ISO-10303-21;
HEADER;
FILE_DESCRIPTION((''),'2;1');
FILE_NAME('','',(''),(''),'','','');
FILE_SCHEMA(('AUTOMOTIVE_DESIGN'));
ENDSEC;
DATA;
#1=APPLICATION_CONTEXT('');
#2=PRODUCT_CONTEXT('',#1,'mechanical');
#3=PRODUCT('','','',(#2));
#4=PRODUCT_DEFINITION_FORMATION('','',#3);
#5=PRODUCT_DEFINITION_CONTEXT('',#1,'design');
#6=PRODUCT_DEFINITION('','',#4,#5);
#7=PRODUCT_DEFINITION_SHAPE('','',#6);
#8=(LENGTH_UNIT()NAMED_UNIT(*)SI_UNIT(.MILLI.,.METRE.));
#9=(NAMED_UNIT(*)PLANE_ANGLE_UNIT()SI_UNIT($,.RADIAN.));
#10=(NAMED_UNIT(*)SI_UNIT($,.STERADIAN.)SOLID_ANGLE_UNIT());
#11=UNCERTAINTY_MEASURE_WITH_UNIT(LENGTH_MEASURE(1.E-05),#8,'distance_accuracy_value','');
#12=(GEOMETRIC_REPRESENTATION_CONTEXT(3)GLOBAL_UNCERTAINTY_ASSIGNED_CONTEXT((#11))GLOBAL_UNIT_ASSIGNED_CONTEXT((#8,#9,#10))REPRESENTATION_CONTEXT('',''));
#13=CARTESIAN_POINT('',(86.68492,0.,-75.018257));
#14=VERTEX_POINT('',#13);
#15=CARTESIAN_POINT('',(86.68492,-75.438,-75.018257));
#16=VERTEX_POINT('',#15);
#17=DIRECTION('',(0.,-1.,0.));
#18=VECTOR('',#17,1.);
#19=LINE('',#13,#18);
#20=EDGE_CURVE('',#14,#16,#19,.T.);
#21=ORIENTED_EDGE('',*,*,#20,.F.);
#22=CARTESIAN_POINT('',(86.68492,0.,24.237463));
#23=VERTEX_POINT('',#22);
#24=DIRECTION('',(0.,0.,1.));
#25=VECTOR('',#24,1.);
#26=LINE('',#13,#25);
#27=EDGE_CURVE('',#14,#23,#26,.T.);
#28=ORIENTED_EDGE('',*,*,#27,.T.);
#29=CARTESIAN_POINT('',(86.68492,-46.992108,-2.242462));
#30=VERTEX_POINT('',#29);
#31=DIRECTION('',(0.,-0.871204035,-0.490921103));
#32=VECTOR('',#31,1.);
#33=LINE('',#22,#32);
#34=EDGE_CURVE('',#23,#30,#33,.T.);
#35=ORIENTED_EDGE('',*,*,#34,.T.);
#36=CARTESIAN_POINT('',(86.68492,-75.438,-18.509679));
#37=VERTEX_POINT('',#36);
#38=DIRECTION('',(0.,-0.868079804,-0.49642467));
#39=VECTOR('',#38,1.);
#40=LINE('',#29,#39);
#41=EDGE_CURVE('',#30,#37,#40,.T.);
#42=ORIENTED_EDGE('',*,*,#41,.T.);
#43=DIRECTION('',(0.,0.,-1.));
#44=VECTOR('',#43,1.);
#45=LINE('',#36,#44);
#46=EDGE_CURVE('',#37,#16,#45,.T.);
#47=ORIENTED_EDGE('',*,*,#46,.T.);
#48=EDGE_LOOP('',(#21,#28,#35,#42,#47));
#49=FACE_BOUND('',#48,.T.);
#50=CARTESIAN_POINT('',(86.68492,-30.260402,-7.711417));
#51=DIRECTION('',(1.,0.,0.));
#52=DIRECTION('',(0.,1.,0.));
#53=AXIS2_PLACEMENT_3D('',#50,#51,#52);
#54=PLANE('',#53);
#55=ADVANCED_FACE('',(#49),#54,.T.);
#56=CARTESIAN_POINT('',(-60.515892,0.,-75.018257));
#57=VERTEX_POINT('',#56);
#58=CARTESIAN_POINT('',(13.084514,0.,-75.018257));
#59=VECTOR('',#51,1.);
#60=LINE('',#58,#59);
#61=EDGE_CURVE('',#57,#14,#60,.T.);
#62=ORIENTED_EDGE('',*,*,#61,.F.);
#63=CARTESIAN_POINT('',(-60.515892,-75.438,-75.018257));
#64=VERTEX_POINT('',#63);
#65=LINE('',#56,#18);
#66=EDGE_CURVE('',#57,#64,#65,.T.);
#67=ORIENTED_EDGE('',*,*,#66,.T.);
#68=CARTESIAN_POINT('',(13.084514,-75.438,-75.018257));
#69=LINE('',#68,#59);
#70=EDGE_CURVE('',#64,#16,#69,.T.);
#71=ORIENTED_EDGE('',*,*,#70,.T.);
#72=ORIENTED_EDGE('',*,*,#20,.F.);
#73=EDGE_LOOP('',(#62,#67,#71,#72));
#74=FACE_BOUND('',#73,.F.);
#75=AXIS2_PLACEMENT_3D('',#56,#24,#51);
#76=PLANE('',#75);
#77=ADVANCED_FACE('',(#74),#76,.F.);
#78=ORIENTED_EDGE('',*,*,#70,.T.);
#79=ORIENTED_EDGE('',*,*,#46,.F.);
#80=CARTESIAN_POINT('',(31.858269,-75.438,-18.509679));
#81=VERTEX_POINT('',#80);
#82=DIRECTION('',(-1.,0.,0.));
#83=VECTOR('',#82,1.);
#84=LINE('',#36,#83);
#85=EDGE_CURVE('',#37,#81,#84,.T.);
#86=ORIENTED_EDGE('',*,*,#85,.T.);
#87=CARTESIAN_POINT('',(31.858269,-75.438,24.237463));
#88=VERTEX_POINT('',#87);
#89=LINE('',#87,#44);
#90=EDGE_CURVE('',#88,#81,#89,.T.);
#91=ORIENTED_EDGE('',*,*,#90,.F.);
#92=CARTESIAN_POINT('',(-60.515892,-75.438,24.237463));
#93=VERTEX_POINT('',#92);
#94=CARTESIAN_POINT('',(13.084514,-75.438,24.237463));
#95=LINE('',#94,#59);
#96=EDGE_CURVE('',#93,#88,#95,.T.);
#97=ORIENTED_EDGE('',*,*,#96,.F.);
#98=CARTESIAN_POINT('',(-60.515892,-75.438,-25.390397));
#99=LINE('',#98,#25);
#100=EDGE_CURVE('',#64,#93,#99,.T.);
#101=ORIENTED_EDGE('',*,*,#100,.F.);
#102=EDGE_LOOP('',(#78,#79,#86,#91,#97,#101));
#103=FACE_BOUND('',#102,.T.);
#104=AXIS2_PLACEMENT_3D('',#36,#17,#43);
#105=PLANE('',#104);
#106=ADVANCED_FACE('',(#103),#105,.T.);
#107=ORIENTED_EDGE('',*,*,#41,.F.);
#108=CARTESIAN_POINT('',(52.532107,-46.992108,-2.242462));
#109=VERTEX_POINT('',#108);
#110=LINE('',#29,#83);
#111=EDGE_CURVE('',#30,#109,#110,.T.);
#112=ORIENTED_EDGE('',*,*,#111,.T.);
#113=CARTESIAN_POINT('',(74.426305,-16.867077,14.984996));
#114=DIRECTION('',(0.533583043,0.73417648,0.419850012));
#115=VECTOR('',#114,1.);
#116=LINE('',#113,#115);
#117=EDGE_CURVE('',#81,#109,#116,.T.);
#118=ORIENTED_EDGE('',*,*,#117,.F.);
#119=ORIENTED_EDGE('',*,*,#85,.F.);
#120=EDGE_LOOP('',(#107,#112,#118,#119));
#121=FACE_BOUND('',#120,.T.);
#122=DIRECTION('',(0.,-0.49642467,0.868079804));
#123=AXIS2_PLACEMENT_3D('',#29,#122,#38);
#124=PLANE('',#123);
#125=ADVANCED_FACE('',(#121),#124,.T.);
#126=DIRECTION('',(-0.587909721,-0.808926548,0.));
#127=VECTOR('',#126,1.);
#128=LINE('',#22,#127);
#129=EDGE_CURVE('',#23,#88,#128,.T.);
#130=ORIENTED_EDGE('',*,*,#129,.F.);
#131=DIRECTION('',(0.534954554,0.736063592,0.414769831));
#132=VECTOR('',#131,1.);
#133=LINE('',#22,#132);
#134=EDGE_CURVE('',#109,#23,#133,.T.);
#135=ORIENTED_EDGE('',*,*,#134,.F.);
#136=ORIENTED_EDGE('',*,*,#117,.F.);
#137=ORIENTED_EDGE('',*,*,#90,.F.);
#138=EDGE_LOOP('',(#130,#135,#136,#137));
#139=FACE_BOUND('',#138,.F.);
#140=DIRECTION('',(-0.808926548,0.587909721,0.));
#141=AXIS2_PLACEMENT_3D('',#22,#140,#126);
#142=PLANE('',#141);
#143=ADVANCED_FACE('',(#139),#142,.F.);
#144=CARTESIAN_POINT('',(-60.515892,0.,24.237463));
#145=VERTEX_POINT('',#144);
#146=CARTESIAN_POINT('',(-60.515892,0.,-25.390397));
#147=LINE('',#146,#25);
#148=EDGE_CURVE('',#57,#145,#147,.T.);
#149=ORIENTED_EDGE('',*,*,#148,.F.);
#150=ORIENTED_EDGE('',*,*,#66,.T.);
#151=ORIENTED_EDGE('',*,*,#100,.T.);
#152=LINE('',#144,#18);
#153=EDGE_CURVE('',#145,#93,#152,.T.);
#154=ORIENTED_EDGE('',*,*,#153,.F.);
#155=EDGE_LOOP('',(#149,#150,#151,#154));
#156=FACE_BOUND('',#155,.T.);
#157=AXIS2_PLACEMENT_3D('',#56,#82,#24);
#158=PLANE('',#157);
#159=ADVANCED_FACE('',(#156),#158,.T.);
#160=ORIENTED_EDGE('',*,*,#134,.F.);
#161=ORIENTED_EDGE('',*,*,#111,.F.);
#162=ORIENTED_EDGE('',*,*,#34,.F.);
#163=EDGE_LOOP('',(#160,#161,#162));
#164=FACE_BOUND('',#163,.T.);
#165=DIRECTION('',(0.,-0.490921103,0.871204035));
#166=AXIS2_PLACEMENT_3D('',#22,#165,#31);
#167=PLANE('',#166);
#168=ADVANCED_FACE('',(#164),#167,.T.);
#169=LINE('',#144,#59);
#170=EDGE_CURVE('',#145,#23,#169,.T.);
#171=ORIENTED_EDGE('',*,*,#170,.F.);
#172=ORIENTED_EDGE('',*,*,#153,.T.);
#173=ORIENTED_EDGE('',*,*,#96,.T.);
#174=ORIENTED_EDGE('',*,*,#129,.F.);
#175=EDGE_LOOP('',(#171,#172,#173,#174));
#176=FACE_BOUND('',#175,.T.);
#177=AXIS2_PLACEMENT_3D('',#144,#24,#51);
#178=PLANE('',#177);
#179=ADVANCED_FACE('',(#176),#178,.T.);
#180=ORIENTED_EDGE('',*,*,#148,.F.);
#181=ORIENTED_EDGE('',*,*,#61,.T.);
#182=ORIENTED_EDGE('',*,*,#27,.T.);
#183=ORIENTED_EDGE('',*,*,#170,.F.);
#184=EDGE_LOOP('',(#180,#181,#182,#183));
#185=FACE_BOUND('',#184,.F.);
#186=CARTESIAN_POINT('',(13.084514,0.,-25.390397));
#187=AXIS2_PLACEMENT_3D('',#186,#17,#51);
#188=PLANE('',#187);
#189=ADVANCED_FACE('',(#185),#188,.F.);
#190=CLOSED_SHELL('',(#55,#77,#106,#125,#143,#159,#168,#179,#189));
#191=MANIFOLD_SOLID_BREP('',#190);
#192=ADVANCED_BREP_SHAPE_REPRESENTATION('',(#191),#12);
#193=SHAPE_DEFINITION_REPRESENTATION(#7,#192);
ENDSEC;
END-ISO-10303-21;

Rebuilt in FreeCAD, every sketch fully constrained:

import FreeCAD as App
import Part
import Sketcher
from FreeCAD import Vector
Q = App.Units.Quantity


def add_polygon(sketch, points):
    """Adds a closed chain of lines whose ends are joined by coincident constraints."""
    first, n = sketch.GeometryCount, len(points)
    for a, b in zip(points, points[1:] + points[:1]):
        sketch.addGeometry(Part.LineSegment(App.Vector(*a, 0), App.Vector(*b, 0)), False)
    for i in range(n):
        sketch.addConstraint(Sketcher.Constraint("Coincident", first + i, 2, first + (i + 1) % n, 1))

doc = App.newDocument("Part")
body = doc.addObject("PartDesign::Body", "Body")

# Sketch on XZ plane
sketch1 = body.newObject("Sketcher::SketchObject", "Sketch")
sketch1.AttachmentSupport = (doc.getObject("XZ_Plane"), [""])
sketch1.MapMode = "FlatFace"
add_polygon(sketch1, [(-61, 24), (-61, -75), (87, -75), (87, 24)])  # lines 0-3
sketch1.addConstraint([
    Sketcher.Constraint("Vertical", 0),
    Sketcher.Constraint("Horizontal", 1),
    Sketcher.Constraint("Vertical", 2),
    Sketcher.Constraint("Horizontal", 3),
    Sketcher.Constraint("DistanceY", 0, 2, 0, 1, 99.25572),
    Sketcher.Constraint("DistanceX", 1, 1, 1, 2, 147.200812),
    Sketcher.Constraint("DistanceX", -1, 1, 1, 2, 86.68492),
    Sketcher.Constraint("DistanceY", 0, 2, -1, 1, 75.018257),
])
pad1 = body.newObject("PartDesign::Pad", "Pad")
pad1.Profile = sketch1
pad1.Length = Q("2.97 in")

# Sketch on XY plane
sketch2 = body.newObject("Sketcher::SketchObject", "Sketch001")
sketch2.AttachmentSupport = (doc.getObject("XY_Plane"), [""])
sketch2.MapMode = "FlatFace"
sketch2.AttachmentOffset = App.Placement(Vector(0, 0, 24.237463), App.Rotation())
add_polygon(sketch2, [(87, -75), (87, 0), (32, -75)])  # lines 0-2
sketch2.addConstraint([
    Sketcher.Constraint("Vertical", 0),
    Sketcher.Constraint("Horizontal", 2),
    Sketcher.Constraint("PointOnObject", 0, 2, -1),
    Sketcher.Constraint("DistanceY", 0, 1, 0, 2, Q("2.97 in")),
    Sketcher.Constraint("DistanceX", 2, 1, 2, 2, 54.826651),
    Sketcher.Constraint("DistanceX", -1, 1, 0, 2, 86.68492),
])
pocket1 = body.newObject("PartDesign::Pocket", "Pocket")
pocket1.Profile = sketch2
pocket1.Length = Q("1.76 in")

# Sketch on YZ plane
sketch3 = body.newObject("Sketcher::SketchObject", "Sketch002")
sketch3.AttachmentSupport = (doc.getObject("YZ_Plane"), [""])
sketch3.MapMode = "FlatFace"
sketch3.AttachmentOffset = App.Placement(Vector(0, 0, 86.68492), App.Rotation())
add_polygon(sketch3, [(-47, -2), (-75, -19), (-75, -24), (0, -24), (0, 24)])  # lines 0-4
sketch3.addConstraint([
    Sketcher.Constraint("Vertical", 1),
    Sketcher.Constraint("Horizontal", 2),
    Sketcher.Constraint("Vertical", 3),
    Sketcher.Constraint("PointOnObject", 2, 2, -2),
    Sketcher.Constraint("DistanceX", 2, 1, 2, 2, Q("2.97 in")),
    Sketcher.Constraint("DistanceY", 1, 2, 1, 1, 5.456969),
    Sketcher.Constraint("DistanceY", 3, 1, 3, 2, 48.204111),
    Sketcher.Constraint("Distance", 4, 53.939268),
    Sketcher.Constraint("DistanceY", 0, 2, -1, 1, 18.509679),
    Sketcher.Constraint("DistanceX", 4, 2, -1, 1, 46.992108),
])
pad2 = body.newObject("PartDesign::Pad", "Pad001")
pad2.Profile = sketch3
pad2.Length = Q("2.57 in")
pad2.Reversed = True

doc.recompute()
